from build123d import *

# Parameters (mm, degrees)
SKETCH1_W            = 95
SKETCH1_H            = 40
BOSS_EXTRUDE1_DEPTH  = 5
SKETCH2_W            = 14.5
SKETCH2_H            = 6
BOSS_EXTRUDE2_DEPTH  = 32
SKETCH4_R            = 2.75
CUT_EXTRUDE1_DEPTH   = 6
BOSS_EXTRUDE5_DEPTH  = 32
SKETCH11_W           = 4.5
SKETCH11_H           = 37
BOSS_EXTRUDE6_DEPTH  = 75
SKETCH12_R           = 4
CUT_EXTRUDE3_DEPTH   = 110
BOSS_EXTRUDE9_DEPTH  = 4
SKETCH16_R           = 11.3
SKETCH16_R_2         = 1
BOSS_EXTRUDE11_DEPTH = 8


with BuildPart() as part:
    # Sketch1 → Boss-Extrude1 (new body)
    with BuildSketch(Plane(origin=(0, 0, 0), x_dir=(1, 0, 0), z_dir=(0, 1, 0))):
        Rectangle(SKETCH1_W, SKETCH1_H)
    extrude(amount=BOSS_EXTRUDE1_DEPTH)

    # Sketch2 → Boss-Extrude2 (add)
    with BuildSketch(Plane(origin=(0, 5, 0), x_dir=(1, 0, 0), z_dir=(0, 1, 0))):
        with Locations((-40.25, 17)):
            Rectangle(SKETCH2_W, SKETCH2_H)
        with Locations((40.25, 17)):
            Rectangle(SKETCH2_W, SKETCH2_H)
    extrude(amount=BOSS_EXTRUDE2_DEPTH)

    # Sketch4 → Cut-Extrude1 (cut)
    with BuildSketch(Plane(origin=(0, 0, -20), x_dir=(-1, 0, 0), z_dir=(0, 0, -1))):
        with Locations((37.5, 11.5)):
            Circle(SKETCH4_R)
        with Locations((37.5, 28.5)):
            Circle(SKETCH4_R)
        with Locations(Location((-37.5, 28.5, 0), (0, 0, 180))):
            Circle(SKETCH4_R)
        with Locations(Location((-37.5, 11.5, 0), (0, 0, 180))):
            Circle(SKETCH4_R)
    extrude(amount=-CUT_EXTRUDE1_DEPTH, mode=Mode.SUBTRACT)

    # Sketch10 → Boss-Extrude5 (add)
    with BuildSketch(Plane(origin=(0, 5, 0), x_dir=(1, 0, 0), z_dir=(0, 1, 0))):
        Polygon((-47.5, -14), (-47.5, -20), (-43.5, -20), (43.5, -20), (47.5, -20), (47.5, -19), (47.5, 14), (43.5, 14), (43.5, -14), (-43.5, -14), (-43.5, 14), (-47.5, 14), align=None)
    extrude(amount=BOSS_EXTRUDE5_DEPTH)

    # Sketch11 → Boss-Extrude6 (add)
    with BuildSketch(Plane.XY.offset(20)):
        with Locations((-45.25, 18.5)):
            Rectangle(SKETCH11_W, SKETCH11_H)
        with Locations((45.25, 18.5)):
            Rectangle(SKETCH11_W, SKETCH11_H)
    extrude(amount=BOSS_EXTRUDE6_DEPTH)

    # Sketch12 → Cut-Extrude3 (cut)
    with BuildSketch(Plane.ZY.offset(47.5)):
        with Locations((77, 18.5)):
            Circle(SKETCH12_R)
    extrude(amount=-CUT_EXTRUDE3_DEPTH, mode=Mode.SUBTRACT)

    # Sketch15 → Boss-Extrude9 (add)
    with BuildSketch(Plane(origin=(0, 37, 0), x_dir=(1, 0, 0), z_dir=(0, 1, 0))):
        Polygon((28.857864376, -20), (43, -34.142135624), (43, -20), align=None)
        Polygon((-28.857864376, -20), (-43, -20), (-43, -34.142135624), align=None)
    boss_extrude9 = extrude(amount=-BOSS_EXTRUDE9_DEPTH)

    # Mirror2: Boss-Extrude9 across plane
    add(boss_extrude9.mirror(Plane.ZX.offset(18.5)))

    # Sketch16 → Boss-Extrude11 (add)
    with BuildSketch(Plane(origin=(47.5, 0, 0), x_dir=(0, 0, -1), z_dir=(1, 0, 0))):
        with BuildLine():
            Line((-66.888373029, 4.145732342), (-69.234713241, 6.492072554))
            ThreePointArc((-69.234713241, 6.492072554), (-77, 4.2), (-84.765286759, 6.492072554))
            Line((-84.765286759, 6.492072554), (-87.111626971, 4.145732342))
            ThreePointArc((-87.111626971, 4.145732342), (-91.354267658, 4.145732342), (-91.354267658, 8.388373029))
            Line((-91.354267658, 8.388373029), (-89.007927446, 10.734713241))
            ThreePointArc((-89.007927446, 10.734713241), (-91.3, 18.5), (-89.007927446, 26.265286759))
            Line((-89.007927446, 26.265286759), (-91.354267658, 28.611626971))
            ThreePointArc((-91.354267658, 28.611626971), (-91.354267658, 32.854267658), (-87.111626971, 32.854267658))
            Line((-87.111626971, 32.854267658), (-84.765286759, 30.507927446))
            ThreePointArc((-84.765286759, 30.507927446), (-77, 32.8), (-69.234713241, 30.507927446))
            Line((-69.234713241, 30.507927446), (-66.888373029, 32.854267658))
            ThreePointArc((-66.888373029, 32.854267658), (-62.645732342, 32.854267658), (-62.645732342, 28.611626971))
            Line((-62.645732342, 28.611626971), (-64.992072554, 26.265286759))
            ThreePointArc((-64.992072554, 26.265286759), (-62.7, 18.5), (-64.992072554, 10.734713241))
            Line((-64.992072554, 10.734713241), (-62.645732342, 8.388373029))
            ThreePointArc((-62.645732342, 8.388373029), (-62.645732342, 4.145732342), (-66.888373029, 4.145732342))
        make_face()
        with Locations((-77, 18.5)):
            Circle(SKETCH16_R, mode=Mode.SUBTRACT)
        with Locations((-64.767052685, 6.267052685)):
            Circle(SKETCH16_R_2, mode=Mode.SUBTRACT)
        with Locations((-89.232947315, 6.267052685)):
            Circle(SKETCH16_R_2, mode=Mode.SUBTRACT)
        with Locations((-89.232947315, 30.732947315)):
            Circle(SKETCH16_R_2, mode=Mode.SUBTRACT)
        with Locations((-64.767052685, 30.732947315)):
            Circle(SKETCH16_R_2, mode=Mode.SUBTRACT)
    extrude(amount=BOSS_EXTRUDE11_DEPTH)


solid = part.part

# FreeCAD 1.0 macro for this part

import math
import FreeCAD as App
import Part
import Sketcher

V = App.Vector

doc = App.newDocument("Part")
body = doc.addObject("PartDesign::Body", "Body")

sketch1 = body.newObject("Sketcher::SketchObject", "Sketch")
sketch1.AttachmentSupport = (doc.getObject("XZ_Plane"), [""])
sketch1.MapMode = "FlatFace"
sketch1.addGeometry([
    Part.LineSegment(V(-48, -20, 0), V(-48, 20, 0)),
    Part.LineSegment(V(-48, 20, 0), V(48, 20, 0)),
    Part.LineSegment(V(48, 20, 0), V(48, -20, 0)),
    Part.LineSegment(V(48, -20, 0), V(-48, -20, 0)),
], False)
sketch1.addConstraint([
    Sketcher.Constraint("Coincident", 0, 2, 1, 1),
    Sketcher.Constraint("Coincident", 1, 2, 2, 1),
    Sketcher.Constraint("Coincident", 2, 2, 3, 1),
    Sketcher.Constraint("Coincident", 3, 2, 0, 1),
    Sketcher.Constraint("Vertical", 0),
    Sketcher.Constraint("Horizontal", 1),
    Sketcher.Constraint("Vertical", 2),
    Sketcher.Constraint("Horizontal", 3),
    Sketcher.Constraint("Symmetric", 0, 2, 2, 2, -1, 1),
    Sketcher.Constraint("DistanceX", 1, 1, 1, 2, 95.0),
    Sketcher.Constraint("DistanceY", 0, 1, 0, 2, 40.0),
])
pad1 = body.newObject("PartDesign::Pad", "Pad")
pad1.Profile = sketch1
pad1.Length = 5
pad1.Reversed = True

sketch2 = body.newObject("Sketcher::SketchObject", "Sketch001")
sketch2.AttachmentSupport = (doc.getObject("XZ_Plane"), [""])
sketch2.MapMode = "FlatFace"
sketch2.AttachmentOffset = App.Placement(V(0, 0, -5), App.Rotation())
sketch2.addGeometry([
    Part.LineSegment(V(-48, -20, 0), V(-48, -14, 0)),
    Part.LineSegment(V(-48, -14, 0), V(-33, -14, 0)),
    Part.LineSegment(V(-33, -14, 0), V(-33, -20, 0)),
    Part.LineSegment(V(-33, -20, 0), V(-48, -20, 0)),
    Part.LineSegment(V(33, -20, 0), V(33, -14, 0)),
    Part.LineSegment(V(33, -14, 0), V(48, -14, 0)),
    Part.LineSegment(V(48, -14, 0), V(48, -20, 0)),
    Part.LineSegment(V(48, -20, 0), V(33, -20, 0)),
], False)
sketch2.addConstraint([
    Sketcher.Constraint("Coincident", 0, 2, 1, 1),
    Sketcher.Constraint("Coincident", 1, 2, 2, 1),
    Sketcher.Constraint("Coincident", 2, 2, 3, 1),
    Sketcher.Constraint("Coincident", 3, 2, 0, 1),
    Sketcher.Constraint("Coincident", 4, 2, 5, 1),
    Sketcher.Constraint("Coincident", 5, 2, 6, 1),
    Sketcher.Constraint("Coincident", 6, 2, 7, 1),
    Sketcher.Constraint("Coincident", 7, 2, 4, 1),
    Sketcher.Constraint("Vertical", 0),
    Sketcher.Constraint("Horizontal", 1),
    Sketcher.Constraint("Vertical", 2),
    Sketcher.Constraint("Horizontal", 3),
    Sketcher.Constraint("Vertical", 4),
    Sketcher.Constraint("Horizontal", 5),
    Sketcher.Constraint("Vertical", 6),
    Sketcher.Constraint("Horizontal", 7),
    Sketcher.Constraint("Symmetric", 1, 2, 4, 2, -2),
    Sketcher.Constraint("Symmetric", 3, 2, 6, 2, -2),
    Sketcher.Constraint("DistanceY", 0, 1, 0, 2, 6.0),
    Sketcher.Constraint("DistanceX", 1, 1, 1, 2, 14.5),
    Sketcher.Constraint("DistanceY", 0, 2, -1, 1, 14.0),
    Sketcher.Constraint("DistanceX", 1, 2, -1, 1, 33.0),
])
pad2 = body.newObject("PartDesign::Pad", "Pad001")
pad2.Profile = sketch2
pad2.Length = 32
pad2.Reversed = True

sketch3 = body.newObject("Sketcher::SketchObject", "Sketch002")
sketch3.AttachmentSupport = (doc.getObject("XY_Plane"), [""])
sketch3.MapMode = "FlatFace"
sketch3.AttachmentOffset = App.Placement(V(0, 0, -20), App.Rotation())
sketch3.addGeometry([
    Part.Circle(V(-37.5, 11.5, 0), V(0, 0, 1), 2.8),
    Part.Circle(V(-37.5, 28.5, 0), V(0, 0, 1), 2.8),
    Part.Circle(V(37.5, 28.5, 0), V(0, 0, 1), 2.8),
    Part.Circle(V(37.5, 11.5, 0), V(0, 0, 1), 2.8),
], False)
sketch3.addConstraint([
    Sketcher.Constraint("Equal", 0, 1),
    Sketcher.Constraint("Equal", 1, 2),
    Sketcher.Constraint("Equal", 2, 3),
    Sketcher.Constraint("Symmetric", 1, 3, 2, 3, -2),
    Sketcher.Constraint("Symmetric", 0, 3, 3, 3, -2),
    Sketcher.Constraint("Vertical", 0, 3, 1, 3),
    Sketcher.Constraint("Diameter", 0, 5.5),
    Sketcher.Constraint("DistanceY", 0, 3, 1, 3, 17.0),
    Sketcher.Constraint("DistanceX", 1, 3, 2, 3, 75.0),
    Sketcher.Constraint("DistanceY", -1, 1, 0, 3, 11.5),
])
pocket1 = body.newObject("PartDesign::Pocket", "Pocket")
pocket1.Profile = sketch3
pocket1.Length = 6
pocket1.Reversed = True

sketch4 = body.newObject("Sketcher::SketchObject", "Sketch003")
sketch4.AttachmentSupport = (doc.getObject("XZ_Plane"), [""])
sketch4.MapMode = "FlatFace"
sketch4.AttachmentOffset = App.Placement(V(0, 0, -5), App.Rotation())
sketch4.addGeometry([
    Part.LineSegment(V(-47.5, 20, 0), V(47.5, 20, 0)),
    Part.LineSegment(V(47.5, 20, 0), V(47.5, -14, 0)),
    Part.LineSegment(V(47.5, -14, 0), V(43.5, -14, 0)),
    Part.LineSegment(V(43.5, -14, 0), V(43.5, 14, 0)),
    Part.LineSegment(V(43.5, 14, 0), V(-43.5, 14, 0)),
    Part.LineSegment(V(-43.5, 14, 0), V(-43.5, -14, 0)),
    Part.LineSegment(V(-43.5, -14, 0), V(-47.5, -14, 0)),
    Part.LineSegment(V(-47.5, -14, 0), V(-47.5, 20, 0)),
], False)
sketch4.addConstraint([
    Sketcher.Constraint("Coincident", 0, 2, 1, 1),
    Sketcher.Constraint("Coincident", 1, 2, 2, 1),
    Sketcher.Constraint("Coincident", 2, 2, 3, 1),
    Sketcher.Constraint("Coincident", 3, 2, 4, 1),
    Sketcher.Constraint("Coincident", 4, 2, 5, 1),
    Sketcher.Constraint("Coincident", 5, 2, 6, 1),
    Sketcher.Constraint("Coincident", 6, 2, 7, 1),
    Sketcher.Constraint("Coincident", 7, 2, 0, 1),
    Sketcher.Constraint("Horizontal", 0),
    Sketcher.Constraint("Vertical", 1),
    Sketcher.Constraint("Horizontal", 2),
    Sketcher.Constraint("Vertical", 3),
    Sketcher.Constraint("Horizontal", 4),
    Sketcher.Constraint("Vertical", 5),
    Sketcher.Constraint("Horizontal", 6),
    Sketcher.Constraint("Vertical", 7),
    Sketcher.Constraint("Symmetric", 2, 2, 4, 2, -1, 1),
    Sketcher.Constraint("Symmetric", 1, 2, 6, 2, -2),
    Sketcher.Constraint("DistanceX", 0, 1, 0, 2, 95.0),
    Sketcher.Constraint("DistanceX", 2, 2, 2, 1, 4.0),
    Sketcher.Constraint("DistanceY", 1, 2, 1, 1, 34.0),
    Sketcher.Constraint("DistanceY", 3, 1, 3, 2, 28.0),
])
pad3 = body.newObject("PartDesign::Pad", "Pad002")
pad3.Profile = sketch4
pad3.Length = 32
pad3.Reversed = True

sketch5 = body.newObject("Sketcher::SketchObject", "Sketch004")
sketch5.AttachmentSupport = (doc.getObject("XY_Plane"), [""])
sketch5.MapMode = "FlatFace"
sketch5.AttachmentOffset = App.Placement(V(0, 0, 20), App.Rotation())
sketch5.addGeometry([
    Part.LineSegment(V(-47.5, 37, 0), V(-47.5, 0, 0)),
    Part.LineSegment(V(-47.5, 0, 0), V(-43, 0, 0)),
    Part.LineSegment(V(-43, 0, 0), V(-43, 37, 0)),
    Part.LineSegment(V(-43, 37, 0), V(-47.5, 37, 0)),
    Part.LineSegment(V(43, 37, 0), V(43, 0, 0)),
    Part.LineSegment(V(43, 0, 0), V(47.5, 0, 0)),
    Part.LineSegment(V(47.5, 0, 0), V(47.5, 37, 0)),
    Part.LineSegment(V(47.5, 37, 0), V(43, 37, 0)),
], False)
sketch5.addConstraint([
    Sketcher.Constraint("Coincident", 0, 2, 1, 1),
    Sketcher.Constraint("Coincident", 1, 2, 2, 1),
    Sketcher.Constraint("Coincident", 2, 2, 3, 1),
    Sketcher.Constraint("Coincident", 3, 2, 0, 1),
    Sketcher.Constraint("Coincident", 4, 2, 5, 1),
    Sketcher.Constraint("Coincident", 5, 2, 6, 1),
    Sketcher.Constraint("Coincident", 6, 2, 7, 1),
    Sketcher.Constraint("Coincident", 7, 2, 4, 1),
    Sketcher.Constraint("Vertical", 0),
    Sketcher.Constraint("Horizontal", 1),
    Sketcher.Constraint("Vertical", 2),
    Sketcher.Constraint("Horizontal", 3),
    Sketcher.Constraint("Vertical", 4),
    Sketcher.Constraint("Horizontal", 5),
    Sketcher.Constraint("Vertical", 6),
    Sketcher.Constraint("Horizontal", 7),
    Sketcher.Constraint("Symmetric", 1, 2, 4, 2, -1, 1),
    Sketcher.Constraint("Symmetric", 0, 2, 5, 2, -2),
    Sketcher.Constraint("Horizontal", 3, 2, 6, 2),
    Sketcher.Constraint("DistanceY", 0, 2, 0, 1, 37.0),
    Sketcher.Constraint("DistanceX", 1, 1, 1, 2, 4.5),
    Sketcher.Constraint("DistanceX", 1, 2, -1, 1, 43.0),
])
pad4 = body.newObject("PartDesign::Pad", "Pad003")
pad4.Profile = sketch5
pad4.Length = 75

sketch6 = body.newObject("Sketcher::SketchObject", "Sketch005")
sketch6.AttachmentSupport = (doc.getObject("YZ_Plane"), [""])
sketch6.MapMode = "FlatFace"
sketch6.AttachmentOffset = App.Placement(V(0, 0, -47.5), App.Rotation())
sketch6.addGeometry(Part.Circle(V(18.5, 77, 0), V(0, 0, 1), 4), False)
sketch6.addConstraint([
    Sketcher.Constraint("Diameter", 0, 8.0),
    Sketcher.Constraint("DistanceY", -1, 1, 0, 3, 77.0),
    Sketcher.Constraint("DistanceX", -1, 1, 0, 3, 18.5),
])
pocket2 = body.newObject("PartDesign::Pocket", "Pocket001")
pocket2.Profile = sketch6
pocket2.Length = 110
pocket2.Reversed = True

sketch7 = body.newObject("Sketcher::SketchObject", "Sketch006")
sketch7.AttachmentSupport = (doc.getObject("XZ_Plane"), [""])
sketch7.MapMode = "FlatFace"
sketch7.AttachmentOffset = App.Placement(V(0, 0, -37), App.Rotation())
sketch7.addGeometry([
    Part.LineSegment(V(29, 20, 0), V(43, 34, 0)),
    Part.LineSegment(V(43, 34, 0), V(43, 20, 0)),
    Part.LineSegment(V(43, 20, 0), V(29, 20, 0)),
    Part.LineSegment(V(-29, 20, 0), V(-43, 20, 0)),
    Part.LineSegment(V(-43, 20, 0), V(-43, 34, 0)),
    Part.LineSegment(V(-43, 34, 0), V(-29, 20, 0)),
], False)
sketch7.addConstraint([
    Sketcher.Constraint("Coincident", 0, 2, 1, 1),
    Sketcher.Constraint("Coincident", 1, 2, 2, 1),
    Sketcher.Constraint("Coincident", 2, 2, 0, 1),
    Sketcher.Constraint("Coincident", 3, 2, 4, 1),
    Sketcher.Constraint("Coincident", 4, 2, 5, 1),
    Sketcher.Constraint("Coincident", 5, 2, 3, 1),
    Sketcher.Constraint("Vertical", 1),
    Sketcher.Constraint("Horizontal", 2),
    Sketcher.Constraint("Horizontal", 3),
    Sketcher.Constraint("Vertical", 4),
    Sketcher.Constraint("Symmetric", 1, 2, 3, 2, -2),
    Sketcher.Constraint("Perpendicular", 0, 5),
    Sketcher.Constraint("Horizontal", 0, 2, 4, 2),
    Sketcher.Constraint("Equal", 2, 3),
    Sketcher.Constraint("Distance", 0, 20.0),
    Sketcher.Constraint("DistanceX", -1, 1, 0, 2, 43.0),
    Sketcher.Constraint("DistanceY", -1, 1, 1, 2, 20.0),
])
pad5 = body.newObject("PartDesign::Pad", "Pad004")
pad5.Profile = sketch7
pad5.Length = 4
doc.recompute()

datumplane = body.newObject("PartDesign::Plane", "DatumPlane")
datumplane.AttachmentSupport = (doc.getObject("XZ_Plane"), [""])
datumplane.MapMode = "FlatFace"
datumplane.AttachmentOffset = App.Placement(V(0, 0, -18.5), App.Rotation())
mirrored = body.newObject("PartDesign::Mirrored", "Mirrored")
mirrored.Originals = [pad5]
mirrored.MirrorPlane = (datumplane, [""])
body.Tip = mirrored

sketch8 = body.newObject("Sketcher::SketchObject", "Sketch007")
sketch8.AttachmentSupport = (doc.getObject("YZ_Plane"), [""])
sketch8.MapMode = "FlatFace"
sketch8.AttachmentOffset = App.Placement(V(0, 0, 47.5), App.Rotation())
sketch8.addGeometry([
    Part.LineSegment(V(6.5, 69.2, 0), V(4.1, 66.9, 0)),
    Part.ArcOfCircle(Part.Circle(V(6.3, 64.8, 0), V(0, 0, 1), 3), math.radians(135), math.radians(315)),
    Part.LineSegment(V(8.4, 62.6, 0), V(10.7, 65, 0)),
    Part.ArcOfCircle(Part.Circle(V(18.5, 77, 0), V(0, 0, 1), 14.3), math.radians(-123), math.radians(-57)),
    Part.LineSegment(V(26.3, 65, 0), V(28.6, 62.6, 0)),
    Part.ArcOfCircle(Part.Circle(V(30.7, 64.8, 0), V(0, 0, 1), 3), math.radians(-135), math.radians(45)),
    Part.LineSegment(V(32.9, 66.9, 0), V(30.5, 69.2, 0)),
    Part.ArcOfCircle(Part.Circle(V(18.5, 77, 0), V(0, 0, 1), 14.3), math.radians(-33), math.radians(33)),
    Part.LineSegment(V(30.5, 84.8, 0), V(32.9, 87.1, 0)),
    Part.ArcOfCircle(Part.Circle(V(30.7, 89.2, 0), V(0, 0, 1), 3), math.radians(-45), math.radians(135)),
    Part.LineSegment(V(28.6, 91.4, 0), V(26.3, 89, 0)),
    Part.ArcOfCircle(Part.Circle(V(18.5, 77, 0), V(0, 0, 1), 14.3), math.radians(57), math.radians(123)),
    Part.LineSegment(V(10.7, 89, 0), V(8.4, 91.4, 0)),
    Part.ArcOfCircle(Part.Circle(V(6.3, 89.2, 0), V(0, 0, 1), 3), math.radians(45), math.radians(225)),
    Part.LineSegment(V(4.1, 87.1, 0), V(6.5, 84.8, 0)),
    Part.ArcOfCircle(Part.Circle(V(18.5, 77, 0), V(0, 0, 1), 14.3), math.radians(147), math.radians(213)),
    Part.Circle(V(6.3, 64.8, 0), V(0, 0, 1), 1),
    Part.Circle(V(6.3, 89.2, 0), V(0, 0, 1), 1),
    Part.Circle(V(18.5, 77, 0), V(0, 0, 1), 11.3),
    Part.Circle(V(30.7, 64.8, 0), V(0, 0, 1), 1),
    Part.Circle(V(30.7, 89.2, 0), V(0, 0, 1), 1),
], False)
sketch8.addConstraint([
    Sketcher.Constraint("Tangent", 0, 2, 1, 1),
    Sketcher.Constraint("Tangent", 1, 2, 2, 1),
    Sketcher.Constraint("Coincident", 2, 2, 3, 1),
    Sketcher.Constraint("Coincident", 3, 2, 4, 1),
    Sketcher.Constraint("Tangent", 4, 2, 5, 1),
    Sketcher.Constraint("Tangent", 5, 2, 6, 1),
    Sketcher.Constraint("Coincident", 6, 2, 7, 1),
    Sketcher.Constraint("Coincident", 7, 2, 8, 1),
    Sketcher.Constraint("Tangent", 8, 2, 9, 1),
    Sketcher.Constraint("Tangent", 9, 2, 10, 1),
    Sketcher.Constraint("Coincident", 10, 2, 11, 1),
    Sketcher.Constraint("Coincident", 11, 2, 12, 1),
    Sketcher.Constraint("Tangent", 12, 2, 13, 1),
    Sketcher.Constraint("Tangent", 13, 2, 14, 1),
    Sketcher.Constraint("Coincident", 14, 2, 15, 1),
    Sketcher.Constraint("Coincident", 15, 2, 0, 1),
    Sketcher.Constraint("Coincident", 7, 3, 3, 3),
    Sketcher.Constraint("Coincident", 11, 3, 3, 3),
    Sketcher.Constraint("Coincident", 15, 3, 3, 3),
    Sketcher.Constraint("Coincident", 16, 3, 1, 3),
    Sketcher.Constraint("Coincident", 17, 3, 13, 3),
    Sketcher.Constraint("Coincident", 18, 3, 3, 3),
    Sketcher.Constraint("Coincident", 19, 3, 5, 3),
    Sketcher.Constraint("Coincident", 20, 3, 9, 3),
    Sketcher.Constraint("Equal", 1, 5),
    Sketcher.Constraint("Equal", 3, 7),
    Sketcher.Constraint("Equal", 5, 9),
    Sketcher.Constraint("Equal", 7, 11),
    Sketcher.Constraint("Equal", 9, 13),
    Sketcher.Constraint("Equal", 11, 15),
    Sketcher.Constraint("Equal", 16, 17),
    Sketcher.Constraint("Equal", 17, 19),
    Sketcher.Constraint("Equal", 19, 20),
    Sketcher.Constraint("Parallel", 0, 2),
    Sketcher.Constraint("Perpendicular", 2, 4),
    Sketcher.Constraint("Parallel", 4, 6),
    Sketcher.Constraint("Perpendicular", 6, 8),
    Sketcher.Constraint("Parallel", 8, 10),
    Sketcher.Constraint("Perpendicular", 10, 12),
    Sketcher.Constraint("Parallel", 12, 14),
    Sketcher.Constraint("Horizontal", 1, 3, 5, 3),
    Sketcher.Constraint("Horizontal", 9, 3, 13, 3),
    Sketcher.Constraint("Horizontal", 2, 2, 3, 2),
    Sketcher.Constraint("Horizontal", 1, 2, 4, 2),
    Sketcher.Constraint("Horizontal", 10, 2, 11, 2),
    Sketcher.Constraint("Vertical", 5, 3, 9, 3),
    Sketcher.Constraint("Vertical", 6, 2, 7, 2),
    Sketcher.Constraint("Equal", 0, 2),
    Sketcher.Constraint("Diameter", 16, 2.0),
    Sketcher.Constraint("Radius", 1, 3.0),
    Sketcher.Constraint("Diameter", 18, 22.6),
    Sketcher.Constraint("Radius", 3, 14.3),
    Sketcher.Constraint("DistanceY", -1, 1, 3, 3, 77.0),
    Sketcher.Constraint("DistanceX", -1, 1, 3, 3, 18.5),
    Sketcher.Constraint("DistanceY", 2, 2, 0, 2, 1.8963),
])
pad6 = body.newObject("PartDesign::Pad", "Pad005")
pad6.Profile = sketch8
pad6.Length = 8

doc.recompute()
